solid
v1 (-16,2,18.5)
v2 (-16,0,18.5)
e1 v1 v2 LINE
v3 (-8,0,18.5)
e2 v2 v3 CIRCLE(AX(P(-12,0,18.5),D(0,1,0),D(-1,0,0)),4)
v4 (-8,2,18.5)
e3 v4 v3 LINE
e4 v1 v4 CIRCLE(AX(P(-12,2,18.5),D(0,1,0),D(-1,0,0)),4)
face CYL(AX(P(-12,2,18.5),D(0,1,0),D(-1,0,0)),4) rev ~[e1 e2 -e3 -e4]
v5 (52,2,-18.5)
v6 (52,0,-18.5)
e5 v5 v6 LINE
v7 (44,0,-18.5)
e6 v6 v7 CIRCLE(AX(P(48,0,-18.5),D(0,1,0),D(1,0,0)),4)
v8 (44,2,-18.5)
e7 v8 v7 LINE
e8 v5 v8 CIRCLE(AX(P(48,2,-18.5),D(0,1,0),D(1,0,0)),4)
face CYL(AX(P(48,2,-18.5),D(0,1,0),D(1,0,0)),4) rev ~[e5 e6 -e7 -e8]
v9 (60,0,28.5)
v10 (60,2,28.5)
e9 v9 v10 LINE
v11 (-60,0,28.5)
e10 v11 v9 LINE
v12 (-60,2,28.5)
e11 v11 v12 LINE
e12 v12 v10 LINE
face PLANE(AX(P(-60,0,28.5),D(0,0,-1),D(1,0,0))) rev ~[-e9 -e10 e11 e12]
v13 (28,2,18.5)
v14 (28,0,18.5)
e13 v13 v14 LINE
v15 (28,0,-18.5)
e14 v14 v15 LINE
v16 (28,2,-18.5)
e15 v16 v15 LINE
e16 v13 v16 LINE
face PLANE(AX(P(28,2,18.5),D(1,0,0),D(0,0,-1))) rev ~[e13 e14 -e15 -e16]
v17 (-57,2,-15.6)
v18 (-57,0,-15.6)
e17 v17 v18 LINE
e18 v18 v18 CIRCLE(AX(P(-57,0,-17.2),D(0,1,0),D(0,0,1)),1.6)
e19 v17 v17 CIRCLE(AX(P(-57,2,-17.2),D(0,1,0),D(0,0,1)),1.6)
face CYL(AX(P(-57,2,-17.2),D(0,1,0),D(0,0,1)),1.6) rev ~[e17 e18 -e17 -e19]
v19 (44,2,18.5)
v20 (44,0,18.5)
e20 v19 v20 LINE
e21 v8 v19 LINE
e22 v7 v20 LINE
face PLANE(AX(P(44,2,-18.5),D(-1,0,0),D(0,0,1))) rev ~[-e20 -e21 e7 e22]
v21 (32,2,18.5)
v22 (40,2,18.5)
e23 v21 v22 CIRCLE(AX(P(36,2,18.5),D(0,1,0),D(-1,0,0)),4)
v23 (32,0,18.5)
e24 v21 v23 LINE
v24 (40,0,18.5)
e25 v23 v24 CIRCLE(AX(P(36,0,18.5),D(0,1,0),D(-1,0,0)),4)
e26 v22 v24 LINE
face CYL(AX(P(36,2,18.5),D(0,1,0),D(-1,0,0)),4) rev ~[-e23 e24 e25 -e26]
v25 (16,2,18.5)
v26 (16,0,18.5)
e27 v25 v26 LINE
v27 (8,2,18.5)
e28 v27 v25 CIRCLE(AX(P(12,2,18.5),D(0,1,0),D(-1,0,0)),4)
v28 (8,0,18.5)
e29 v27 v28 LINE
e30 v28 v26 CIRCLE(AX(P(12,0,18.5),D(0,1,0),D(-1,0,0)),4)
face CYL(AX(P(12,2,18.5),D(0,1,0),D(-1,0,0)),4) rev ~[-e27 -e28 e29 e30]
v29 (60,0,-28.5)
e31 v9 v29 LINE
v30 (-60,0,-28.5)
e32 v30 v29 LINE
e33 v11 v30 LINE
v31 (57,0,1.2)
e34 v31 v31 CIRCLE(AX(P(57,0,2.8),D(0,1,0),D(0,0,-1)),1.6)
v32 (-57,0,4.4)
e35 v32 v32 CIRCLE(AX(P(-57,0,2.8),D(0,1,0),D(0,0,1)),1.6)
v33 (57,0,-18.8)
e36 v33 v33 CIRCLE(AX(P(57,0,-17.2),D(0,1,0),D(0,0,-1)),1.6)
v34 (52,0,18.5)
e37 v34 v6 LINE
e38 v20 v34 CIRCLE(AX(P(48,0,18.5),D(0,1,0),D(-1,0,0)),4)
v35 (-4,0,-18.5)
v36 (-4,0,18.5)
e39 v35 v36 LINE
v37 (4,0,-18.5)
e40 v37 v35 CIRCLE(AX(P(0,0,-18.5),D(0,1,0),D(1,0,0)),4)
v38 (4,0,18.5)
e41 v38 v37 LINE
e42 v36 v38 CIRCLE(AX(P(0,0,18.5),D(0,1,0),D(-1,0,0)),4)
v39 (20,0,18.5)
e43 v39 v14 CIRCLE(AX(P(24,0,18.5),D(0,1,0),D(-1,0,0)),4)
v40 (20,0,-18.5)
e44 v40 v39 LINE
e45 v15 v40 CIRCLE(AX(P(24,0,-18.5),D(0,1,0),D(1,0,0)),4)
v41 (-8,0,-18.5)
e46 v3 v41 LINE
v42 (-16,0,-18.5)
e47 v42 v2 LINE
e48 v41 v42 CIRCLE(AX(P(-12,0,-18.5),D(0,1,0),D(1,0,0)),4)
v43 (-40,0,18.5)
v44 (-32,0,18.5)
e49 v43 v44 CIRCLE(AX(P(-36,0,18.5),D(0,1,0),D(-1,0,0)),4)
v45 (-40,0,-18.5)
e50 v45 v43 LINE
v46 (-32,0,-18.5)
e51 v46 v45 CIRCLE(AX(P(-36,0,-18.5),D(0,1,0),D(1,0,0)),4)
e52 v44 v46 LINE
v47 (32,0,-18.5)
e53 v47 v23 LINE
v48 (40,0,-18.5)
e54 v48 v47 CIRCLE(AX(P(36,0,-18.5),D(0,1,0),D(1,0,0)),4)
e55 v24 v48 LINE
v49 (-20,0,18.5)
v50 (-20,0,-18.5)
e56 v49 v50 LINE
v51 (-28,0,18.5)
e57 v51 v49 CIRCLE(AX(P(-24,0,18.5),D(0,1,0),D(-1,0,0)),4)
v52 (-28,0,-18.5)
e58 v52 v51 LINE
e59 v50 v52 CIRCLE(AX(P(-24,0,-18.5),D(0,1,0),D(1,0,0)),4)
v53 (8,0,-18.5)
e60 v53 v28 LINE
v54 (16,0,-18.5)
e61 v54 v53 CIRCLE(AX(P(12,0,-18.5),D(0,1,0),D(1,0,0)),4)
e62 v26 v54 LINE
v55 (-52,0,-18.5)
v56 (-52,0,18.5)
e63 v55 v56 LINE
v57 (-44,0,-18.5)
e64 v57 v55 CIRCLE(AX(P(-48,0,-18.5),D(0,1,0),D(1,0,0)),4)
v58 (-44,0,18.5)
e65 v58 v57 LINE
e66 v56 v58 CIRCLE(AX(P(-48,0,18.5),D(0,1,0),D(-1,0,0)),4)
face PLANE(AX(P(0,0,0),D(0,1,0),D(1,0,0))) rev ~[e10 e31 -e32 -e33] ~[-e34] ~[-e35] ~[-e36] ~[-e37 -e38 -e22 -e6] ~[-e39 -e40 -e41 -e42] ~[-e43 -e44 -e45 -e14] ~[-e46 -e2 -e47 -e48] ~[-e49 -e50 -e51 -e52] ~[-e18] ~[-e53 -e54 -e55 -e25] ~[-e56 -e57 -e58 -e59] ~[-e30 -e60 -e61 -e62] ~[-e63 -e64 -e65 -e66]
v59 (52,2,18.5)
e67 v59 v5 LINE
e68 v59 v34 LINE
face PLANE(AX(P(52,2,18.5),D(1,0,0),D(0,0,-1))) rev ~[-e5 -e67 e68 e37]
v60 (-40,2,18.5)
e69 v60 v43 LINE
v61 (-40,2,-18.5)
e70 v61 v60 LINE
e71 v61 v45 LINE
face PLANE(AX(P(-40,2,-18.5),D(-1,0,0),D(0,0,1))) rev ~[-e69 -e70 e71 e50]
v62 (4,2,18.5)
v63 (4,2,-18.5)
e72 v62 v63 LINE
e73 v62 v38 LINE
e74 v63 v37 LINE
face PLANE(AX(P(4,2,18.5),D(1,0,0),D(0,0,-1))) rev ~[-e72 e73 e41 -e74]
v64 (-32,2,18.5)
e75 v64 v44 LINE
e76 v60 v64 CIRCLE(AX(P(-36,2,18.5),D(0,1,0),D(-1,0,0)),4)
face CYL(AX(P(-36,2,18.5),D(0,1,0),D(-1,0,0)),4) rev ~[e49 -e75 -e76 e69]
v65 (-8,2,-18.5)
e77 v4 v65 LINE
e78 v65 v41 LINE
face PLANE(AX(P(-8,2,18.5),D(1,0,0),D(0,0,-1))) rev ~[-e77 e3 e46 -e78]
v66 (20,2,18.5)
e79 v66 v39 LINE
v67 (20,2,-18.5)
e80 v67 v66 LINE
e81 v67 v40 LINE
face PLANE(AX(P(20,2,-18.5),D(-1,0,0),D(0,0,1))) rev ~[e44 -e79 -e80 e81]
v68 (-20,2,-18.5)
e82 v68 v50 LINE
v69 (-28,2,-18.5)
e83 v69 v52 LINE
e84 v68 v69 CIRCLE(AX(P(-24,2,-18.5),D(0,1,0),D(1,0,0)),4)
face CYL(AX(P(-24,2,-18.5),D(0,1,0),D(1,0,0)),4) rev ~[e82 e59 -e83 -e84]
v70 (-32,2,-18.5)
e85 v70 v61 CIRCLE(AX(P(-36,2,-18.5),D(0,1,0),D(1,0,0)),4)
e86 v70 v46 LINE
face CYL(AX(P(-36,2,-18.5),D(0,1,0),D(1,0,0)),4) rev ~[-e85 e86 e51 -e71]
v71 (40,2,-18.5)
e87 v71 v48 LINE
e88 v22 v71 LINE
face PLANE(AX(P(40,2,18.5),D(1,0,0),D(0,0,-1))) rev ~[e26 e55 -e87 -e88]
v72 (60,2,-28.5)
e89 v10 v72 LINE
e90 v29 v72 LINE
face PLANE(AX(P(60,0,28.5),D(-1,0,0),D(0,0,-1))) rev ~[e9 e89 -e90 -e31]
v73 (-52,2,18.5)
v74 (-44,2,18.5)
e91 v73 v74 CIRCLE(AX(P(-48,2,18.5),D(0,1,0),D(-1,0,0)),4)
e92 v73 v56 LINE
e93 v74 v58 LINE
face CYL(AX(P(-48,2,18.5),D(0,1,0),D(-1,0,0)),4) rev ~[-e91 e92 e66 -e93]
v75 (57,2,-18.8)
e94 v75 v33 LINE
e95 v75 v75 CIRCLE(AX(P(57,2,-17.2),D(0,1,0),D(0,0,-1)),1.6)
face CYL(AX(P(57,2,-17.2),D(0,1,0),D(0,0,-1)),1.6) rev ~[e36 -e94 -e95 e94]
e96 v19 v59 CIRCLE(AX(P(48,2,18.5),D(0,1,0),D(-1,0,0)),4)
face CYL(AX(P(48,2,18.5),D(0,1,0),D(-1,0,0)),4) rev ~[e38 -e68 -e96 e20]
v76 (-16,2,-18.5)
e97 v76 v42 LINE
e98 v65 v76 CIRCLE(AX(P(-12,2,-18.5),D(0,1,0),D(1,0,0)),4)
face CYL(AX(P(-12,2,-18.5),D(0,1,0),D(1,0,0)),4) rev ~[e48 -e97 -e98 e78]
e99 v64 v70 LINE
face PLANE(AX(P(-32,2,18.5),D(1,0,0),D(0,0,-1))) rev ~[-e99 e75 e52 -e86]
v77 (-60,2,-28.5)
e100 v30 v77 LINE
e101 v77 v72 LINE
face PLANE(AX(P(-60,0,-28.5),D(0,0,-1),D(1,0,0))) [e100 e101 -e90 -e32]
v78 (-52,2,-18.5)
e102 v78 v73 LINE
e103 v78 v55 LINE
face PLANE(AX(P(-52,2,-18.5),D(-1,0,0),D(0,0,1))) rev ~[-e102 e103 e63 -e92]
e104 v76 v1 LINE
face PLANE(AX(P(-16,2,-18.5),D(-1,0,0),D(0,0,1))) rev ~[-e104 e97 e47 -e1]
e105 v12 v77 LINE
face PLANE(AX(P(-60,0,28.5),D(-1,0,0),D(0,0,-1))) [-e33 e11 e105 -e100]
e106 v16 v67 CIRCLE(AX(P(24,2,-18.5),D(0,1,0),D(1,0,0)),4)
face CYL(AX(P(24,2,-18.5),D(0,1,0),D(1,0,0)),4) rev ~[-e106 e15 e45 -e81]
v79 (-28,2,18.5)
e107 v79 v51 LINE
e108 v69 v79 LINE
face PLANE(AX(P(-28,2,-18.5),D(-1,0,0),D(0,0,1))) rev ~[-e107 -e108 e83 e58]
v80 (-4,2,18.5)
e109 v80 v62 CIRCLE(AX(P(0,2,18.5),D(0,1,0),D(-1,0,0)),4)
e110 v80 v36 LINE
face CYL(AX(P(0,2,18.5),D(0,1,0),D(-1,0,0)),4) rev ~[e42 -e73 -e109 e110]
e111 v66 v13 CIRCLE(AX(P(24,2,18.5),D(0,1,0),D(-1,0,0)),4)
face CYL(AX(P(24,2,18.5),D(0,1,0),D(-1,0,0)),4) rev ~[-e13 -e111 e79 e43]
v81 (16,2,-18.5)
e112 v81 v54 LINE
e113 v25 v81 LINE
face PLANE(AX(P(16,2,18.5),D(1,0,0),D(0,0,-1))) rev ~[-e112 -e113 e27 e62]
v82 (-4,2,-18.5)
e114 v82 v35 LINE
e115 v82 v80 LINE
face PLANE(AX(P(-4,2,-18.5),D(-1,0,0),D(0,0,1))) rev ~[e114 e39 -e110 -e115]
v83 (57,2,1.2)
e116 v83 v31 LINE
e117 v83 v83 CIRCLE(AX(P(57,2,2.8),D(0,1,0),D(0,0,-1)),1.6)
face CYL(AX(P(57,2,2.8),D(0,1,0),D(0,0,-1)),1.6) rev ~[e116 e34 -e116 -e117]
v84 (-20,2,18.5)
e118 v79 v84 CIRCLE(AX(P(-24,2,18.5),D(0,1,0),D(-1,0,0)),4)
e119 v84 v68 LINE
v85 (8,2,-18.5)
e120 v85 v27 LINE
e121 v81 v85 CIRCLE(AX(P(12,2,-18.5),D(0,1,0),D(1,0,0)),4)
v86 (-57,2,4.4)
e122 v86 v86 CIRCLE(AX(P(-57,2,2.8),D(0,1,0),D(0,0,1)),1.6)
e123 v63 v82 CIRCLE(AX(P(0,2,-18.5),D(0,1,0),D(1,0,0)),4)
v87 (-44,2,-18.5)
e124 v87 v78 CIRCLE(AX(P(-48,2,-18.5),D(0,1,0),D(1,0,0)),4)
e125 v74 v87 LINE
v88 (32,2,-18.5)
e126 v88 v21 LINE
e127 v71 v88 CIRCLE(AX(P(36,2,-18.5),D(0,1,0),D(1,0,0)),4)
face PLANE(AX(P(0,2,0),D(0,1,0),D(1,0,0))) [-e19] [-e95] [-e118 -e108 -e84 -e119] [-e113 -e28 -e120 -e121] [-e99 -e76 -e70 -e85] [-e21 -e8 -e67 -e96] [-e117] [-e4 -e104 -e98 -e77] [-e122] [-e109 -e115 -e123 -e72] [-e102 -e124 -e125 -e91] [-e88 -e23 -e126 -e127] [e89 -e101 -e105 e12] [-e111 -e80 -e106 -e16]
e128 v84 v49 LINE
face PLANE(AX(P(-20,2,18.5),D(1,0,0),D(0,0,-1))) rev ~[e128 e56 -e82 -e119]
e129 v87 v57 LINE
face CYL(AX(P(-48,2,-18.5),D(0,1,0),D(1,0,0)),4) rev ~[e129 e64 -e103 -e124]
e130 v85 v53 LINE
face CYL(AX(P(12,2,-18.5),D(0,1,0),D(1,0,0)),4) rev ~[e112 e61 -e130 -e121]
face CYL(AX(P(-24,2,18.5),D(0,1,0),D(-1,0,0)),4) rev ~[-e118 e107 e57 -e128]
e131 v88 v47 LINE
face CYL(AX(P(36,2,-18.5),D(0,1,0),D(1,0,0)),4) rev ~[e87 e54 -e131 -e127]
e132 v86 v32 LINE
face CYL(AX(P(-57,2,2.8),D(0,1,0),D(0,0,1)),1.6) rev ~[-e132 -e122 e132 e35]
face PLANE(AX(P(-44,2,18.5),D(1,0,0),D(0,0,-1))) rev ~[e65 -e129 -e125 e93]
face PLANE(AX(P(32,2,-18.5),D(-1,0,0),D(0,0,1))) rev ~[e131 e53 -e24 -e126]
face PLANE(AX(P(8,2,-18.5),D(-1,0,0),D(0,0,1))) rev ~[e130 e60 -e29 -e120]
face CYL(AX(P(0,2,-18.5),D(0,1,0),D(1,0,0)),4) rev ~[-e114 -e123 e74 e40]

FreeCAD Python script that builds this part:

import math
import FreeCAD as App
import Part
import Sketcher

V = App.Vector
Q = App.Units.Quantity

doc = App.newDocument("Part")
body = doc.addObject("PartDesign::Body", "Body")

# Sketch on XZ plane
sketch1 = body.newObject("Sketcher::SketchObject", "Sketch")
sketch1.AttachmentSupport = (doc.getObject("XZ_Plane"), [""])
sketch1.MapMode = "FlatFace"
sketch1.addGeometry([
    Part.LineSegment(V(-60, -28, 0), V(-60, 28, 0)),
    Part.LineSegment(V(-60, 28, 0), V(60, 28, 0)),
    Part.LineSegment(V(60, 28, 0), V(60, -28, 0)),
    Part.LineSegment(V(60, -28, 0), V(-60, -28, 0)),
], False)
sketch1.addConstraint([
    Sketcher.Constraint("Coincident", 0, 2, 1, 1),
    Sketcher.Constraint("Coincident", 1, 2, 2, 1),
    Sketcher.Constraint("Coincident", 2, 2, 3, 1),
    Sketcher.Constraint("Coincident", 3, 2, 0, 1),
    Sketcher.Constraint("Vertical", 0),
    Sketcher.Constraint("Horizontal", 1),
    Sketcher.Constraint("Vertical", 2),
    Sketcher.Constraint("Horizontal", 3),
    Sketcher.Constraint("Symmetric", 0, 2, 2, 2, -1, 1),
    Sketcher.Constraint("DistanceX", 1, 1, 1, 2, Q("120 mm")),
    Sketcher.Constraint("DistanceY", 0, 1, 0, 2, Q("57 mm")),
])
pad1 = body.newObject("PartDesign::Pad", "Pad")
pad1.Profile = sketch1
pad1.Length = 2
pad1.Reversed = True

# Sketch on XZ plane
sketch2 = body.newObject("Sketcher::SketchObject", "Sketch001")
sketch2.AttachmentSupport = (doc.getObject("XZ_Plane"), [""])
sketch2.MapMode = "FlatFace"
sketch2.AttachmentOffset = App.Placement(V(0, 0, -2), App.Rotation())
sketch2.addGeometry([
    Part.Circle(V(-57, -17.2, 0), V(0, 0, 1), 1.6),
    Part.Circle(V(-57, 2.8, 0), V(0, 0, 1), 1.6),
    Part.Circle(V(57, 2.8, 0), V(0, 0, 1), 1.6),
    Part.Circle(V(57, -17.2, 0), V(0, 0, 1), 1.6),
], False)
sketch2.addConstraint([
    Sketcher.Constraint("Equal", 0, 1),
    Sketcher.Constraint("Equal", 1, 2),
    Sketcher.Constraint("Equal", 2, 3),
    Sketcher.Constraint("Symmetric", 1, 3, 2, 3, -2),
    Sketcher.Constraint("Symmetric", 0, 3, 3, 3, -2),
    Sketcher.Constraint("Vertical", 0, 3, 1, 3),
    Sketcher.Constraint("Diameter", 0, Q("3.2 mm")),
    Sketcher.Constraint("DistanceX", 0, 3, -1, 1, Q("57 mm")),
    Sketcher.Constraint("DistanceY", 0, 3, 1, 3, Q("20 mm")),
    Sketcher.Constraint("DistanceY", 0, 3, -1, 1, Q("17.2 mm")),
])
pocket1 = body.newObject("PartDesign::Pocket", "Pocket")
pocket1.Profile = sketch2
pocket1.Type = "ThroughAll"
pocket1.Reversed = True

# Sketch on XZ plane
sketch3 = body.newObject("Sketcher::SketchObject", "Sketch002")
sketch3.AttachmentSupport = (doc.getObject("XZ_Plane"), [""])
sketch3.MapMode = "FlatFace"
sketch3.AttachmentOffset = App.Placement(V(0, 0, -2), App.Rotation())
sketch3.addGeometry([
    Part.ArcOfCircle(Part.Circle(V(0, -18.5, 0), V(0, 0, 1), 4), math.radians(180), math.radians(360)),
    Part.LineSegment(V(-4, -18.5, 0), V(-4, 18.5, 0)),
    Part.ArcOfCircle(Part.Circle(V(0, 18.5, 0), V(0, 0, 1), 4), math.radians(0), math.radians(180)),
    Part.LineSegment(V(4, 18.5, 0), V(4, -18.5, 0)),
], False)
sketch3.addConstraint([
    Sketcher.Constraint("Tangent", 0, 1, 1, 1),
    Sketcher.Constraint("Tangent", 1, 2, 2, 2),
    Sketcher.Constraint("Tangent", 2, 1, 3, 1),
    Sketcher.Constraint("Tangent", 3, 2, 0, 2),
    Sketcher.Constraint("Vertical", 1),
    Sketcher.Constraint("Vertical", 3),
    Sketcher.Constraint("Symmetric", 0, 3, 2, 3, -1, 1),
    Sketcher.Constraint("Radius", 0, Q("4 mm")),
    Sketcher.Constraint("DistanceY", 1, 1, 1, 2, Q("37 mm")),
])
pocket2 = body.newObject("PartDesign::Pocket", "Pocket001")
pocket2.Profile = sketch3
pocket2.Type = "ThroughAll"
pocket2.Reversed = True
doc.recompute()

linearpattern = body.newObject("PartDesign::LinearPattern", "LinearPattern")
linearpattern.Originals = [pocket2]
linearpattern.Direction = (doc.getObject("X_Axis"), [""])
linearpattern.Mode = "offset"
linearpattern.Offset = 12
linearpattern.Occurrences = 5
body.Tip = linearpattern
doc.recompute()

linearpattern2 = body.newObject("PartDesign::LinearPattern", "LinearPattern001")
linearpattern2.Originals = [pocket2]
linearpattern2.Direction = (doc.getObject("X_Axis"), [""])
linearpattern2.Mode = "offset"
linearpattern2.Offset = 12
linearpattern2.Occurrences = 5
linearpattern2.Reversed = True
body.Tip = linearpattern2

doc.recompute()
